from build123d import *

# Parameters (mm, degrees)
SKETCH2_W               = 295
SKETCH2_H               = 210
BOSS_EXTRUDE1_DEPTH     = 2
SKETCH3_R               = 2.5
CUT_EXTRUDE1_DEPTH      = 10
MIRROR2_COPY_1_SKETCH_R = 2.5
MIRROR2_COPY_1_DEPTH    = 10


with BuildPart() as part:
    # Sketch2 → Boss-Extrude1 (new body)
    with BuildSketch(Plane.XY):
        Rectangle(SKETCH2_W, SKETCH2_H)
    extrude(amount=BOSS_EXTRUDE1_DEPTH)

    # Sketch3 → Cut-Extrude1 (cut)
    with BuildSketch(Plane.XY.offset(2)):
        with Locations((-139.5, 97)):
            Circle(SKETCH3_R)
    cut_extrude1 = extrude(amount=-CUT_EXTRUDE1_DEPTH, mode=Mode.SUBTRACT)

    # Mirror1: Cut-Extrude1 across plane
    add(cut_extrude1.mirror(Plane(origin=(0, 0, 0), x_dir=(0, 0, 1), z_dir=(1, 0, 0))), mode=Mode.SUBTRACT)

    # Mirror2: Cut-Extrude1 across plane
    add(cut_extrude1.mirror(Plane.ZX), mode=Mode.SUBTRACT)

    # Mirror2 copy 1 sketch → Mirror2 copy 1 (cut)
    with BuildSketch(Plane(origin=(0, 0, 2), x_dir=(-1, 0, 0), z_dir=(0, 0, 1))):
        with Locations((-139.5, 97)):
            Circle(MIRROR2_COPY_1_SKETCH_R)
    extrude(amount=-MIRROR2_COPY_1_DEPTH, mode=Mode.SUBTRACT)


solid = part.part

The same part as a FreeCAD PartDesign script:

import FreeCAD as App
import Part
import Sketcher


def add_polygon(sketch, points):
    """Adds a closed chain of lines whose ends are joined by coincident constraints."""
    first, n = sketch.GeometryCount, len(points)
    for a, b in zip(points, points[1:] + points[:1]):
        sketch.addGeometry(Part.LineSegment(App.Vector(*a, 0), App.Vector(*b, 0)), False)
    for i in range(n):
        sketch.addConstraint(Sketcher.Constraint("Coincident", first + i, 2, first + (i + 1) % n, 1))

doc = App.newDocument("Part")
body = doc.addObject("PartDesign::Body", "Body")

# Sketch on XY plane
sketch1 = body.newObject("Sketcher::SketchObject", "Sketch")
sketch1.AttachmentSupport = (doc.getObject("XY_Plane"), [""])
sketch1.MapMode = "FlatFace"
add_polygon(sketch1, [(-148, 105), (-148, -105), (148, -105), (148, 105)])  # lines 0-3
sketch1.addConstraint([
    Sketcher.Constraint("Vertical", 0),
    Sketcher.Constraint("Horizontal", 1),
    Sketcher.Constraint("Vertical", 2),
    Sketcher.Constraint("Horizontal", 3),
    Sketcher.Constraint("Symmetric", 0, 2, 2, 2, -1, 1),
    Sketcher.Constraint("DistanceX", 1, 1, 1, 2, 295.0),
    Sketcher.Constraint("DistanceY", 0, 2, 0, 1, 210.0),
])
pad1 = body.newObject("PartDesign::Pad", "Pad")
pad1.Profile = sketch1
pad1.Length = 2

# Sketch on XY plane
sketch2 = body.newObject("Sketcher::SketchObject", "Sketch001")
sketch2.AttachmentSupport = (doc.getObject("XY_Plane"), [""])
sketch2.MapMode = "FlatFace"
sketch2.AttachmentOffset = App.Placement(App.Vector(0, 0, 2), App.Rotation())
sketch2.addGeometry(Part.Circle(App.Vector(-139.5, 97, 0), App.Vector(0, 0, 1), 2.5), False)
sketch2.addConstraint([
    Sketcher.Constraint("Diameter", 0, 5.0),
    Sketcher.Constraint("DistanceY", -1, 1, 0, 3, 97.0),
    Sketcher.Constraint("DistanceX", 0, 3, -1, 1, 139.5),
])
pocket1 = body.newObject("PartDesign::Pocket", "Pocket")
pocket1.Profile = sketch2
pocket1.Length = 10
doc.recompute()

mirrored = body.newObject("PartDesign::Mirrored", "Mirrored")
mirrored.Originals = [pocket1]
mirrored.MirrorPlane = (doc.getObject("YZ_Plane"), [""])
body.Tip = mirrored
doc.recompute()

mirrored2 = body.newObject("PartDesign::Mirrored", "Mirrored001")
mirrored2.Originals = [pocket1]
mirrored2.MirrorPlane = (doc.getObject("XZ_Plane"), [""])
body.Tip = mirrored2

# Sketch on XY plane
sketch3 = body.newObject("Sketcher::SketchObject", "Sketch002")
sketch3.AttachmentSupport = (doc.getObject("XY_Plane"), [""])
sketch3.MapMode = "FlatFace"
sketch3.AttachmentOffset = App.Placement(App.Vector(0, 0, 2), App.Rotation())
sketch3.addGeometry(Part.Circle(App.Vector(139.5, -97, 0), App.Vector(0, 0, 1), 2.5), False)
sketch3.addConstraint([
    Sketcher.Constraint("Diameter", 0, 5.0),
    Sketcher.Constraint("DistanceY", 0, 3, -1, 1, 97.0),
    Sketcher.Constraint("DistanceX", -1, 1, 0, 3, 139.5),
])
pocket2 = body.newObject("PartDesign::Pocket", "Pocket001")
pocket2.Profile = sketch3
pocket2.Length = 10

doc.recompute()
